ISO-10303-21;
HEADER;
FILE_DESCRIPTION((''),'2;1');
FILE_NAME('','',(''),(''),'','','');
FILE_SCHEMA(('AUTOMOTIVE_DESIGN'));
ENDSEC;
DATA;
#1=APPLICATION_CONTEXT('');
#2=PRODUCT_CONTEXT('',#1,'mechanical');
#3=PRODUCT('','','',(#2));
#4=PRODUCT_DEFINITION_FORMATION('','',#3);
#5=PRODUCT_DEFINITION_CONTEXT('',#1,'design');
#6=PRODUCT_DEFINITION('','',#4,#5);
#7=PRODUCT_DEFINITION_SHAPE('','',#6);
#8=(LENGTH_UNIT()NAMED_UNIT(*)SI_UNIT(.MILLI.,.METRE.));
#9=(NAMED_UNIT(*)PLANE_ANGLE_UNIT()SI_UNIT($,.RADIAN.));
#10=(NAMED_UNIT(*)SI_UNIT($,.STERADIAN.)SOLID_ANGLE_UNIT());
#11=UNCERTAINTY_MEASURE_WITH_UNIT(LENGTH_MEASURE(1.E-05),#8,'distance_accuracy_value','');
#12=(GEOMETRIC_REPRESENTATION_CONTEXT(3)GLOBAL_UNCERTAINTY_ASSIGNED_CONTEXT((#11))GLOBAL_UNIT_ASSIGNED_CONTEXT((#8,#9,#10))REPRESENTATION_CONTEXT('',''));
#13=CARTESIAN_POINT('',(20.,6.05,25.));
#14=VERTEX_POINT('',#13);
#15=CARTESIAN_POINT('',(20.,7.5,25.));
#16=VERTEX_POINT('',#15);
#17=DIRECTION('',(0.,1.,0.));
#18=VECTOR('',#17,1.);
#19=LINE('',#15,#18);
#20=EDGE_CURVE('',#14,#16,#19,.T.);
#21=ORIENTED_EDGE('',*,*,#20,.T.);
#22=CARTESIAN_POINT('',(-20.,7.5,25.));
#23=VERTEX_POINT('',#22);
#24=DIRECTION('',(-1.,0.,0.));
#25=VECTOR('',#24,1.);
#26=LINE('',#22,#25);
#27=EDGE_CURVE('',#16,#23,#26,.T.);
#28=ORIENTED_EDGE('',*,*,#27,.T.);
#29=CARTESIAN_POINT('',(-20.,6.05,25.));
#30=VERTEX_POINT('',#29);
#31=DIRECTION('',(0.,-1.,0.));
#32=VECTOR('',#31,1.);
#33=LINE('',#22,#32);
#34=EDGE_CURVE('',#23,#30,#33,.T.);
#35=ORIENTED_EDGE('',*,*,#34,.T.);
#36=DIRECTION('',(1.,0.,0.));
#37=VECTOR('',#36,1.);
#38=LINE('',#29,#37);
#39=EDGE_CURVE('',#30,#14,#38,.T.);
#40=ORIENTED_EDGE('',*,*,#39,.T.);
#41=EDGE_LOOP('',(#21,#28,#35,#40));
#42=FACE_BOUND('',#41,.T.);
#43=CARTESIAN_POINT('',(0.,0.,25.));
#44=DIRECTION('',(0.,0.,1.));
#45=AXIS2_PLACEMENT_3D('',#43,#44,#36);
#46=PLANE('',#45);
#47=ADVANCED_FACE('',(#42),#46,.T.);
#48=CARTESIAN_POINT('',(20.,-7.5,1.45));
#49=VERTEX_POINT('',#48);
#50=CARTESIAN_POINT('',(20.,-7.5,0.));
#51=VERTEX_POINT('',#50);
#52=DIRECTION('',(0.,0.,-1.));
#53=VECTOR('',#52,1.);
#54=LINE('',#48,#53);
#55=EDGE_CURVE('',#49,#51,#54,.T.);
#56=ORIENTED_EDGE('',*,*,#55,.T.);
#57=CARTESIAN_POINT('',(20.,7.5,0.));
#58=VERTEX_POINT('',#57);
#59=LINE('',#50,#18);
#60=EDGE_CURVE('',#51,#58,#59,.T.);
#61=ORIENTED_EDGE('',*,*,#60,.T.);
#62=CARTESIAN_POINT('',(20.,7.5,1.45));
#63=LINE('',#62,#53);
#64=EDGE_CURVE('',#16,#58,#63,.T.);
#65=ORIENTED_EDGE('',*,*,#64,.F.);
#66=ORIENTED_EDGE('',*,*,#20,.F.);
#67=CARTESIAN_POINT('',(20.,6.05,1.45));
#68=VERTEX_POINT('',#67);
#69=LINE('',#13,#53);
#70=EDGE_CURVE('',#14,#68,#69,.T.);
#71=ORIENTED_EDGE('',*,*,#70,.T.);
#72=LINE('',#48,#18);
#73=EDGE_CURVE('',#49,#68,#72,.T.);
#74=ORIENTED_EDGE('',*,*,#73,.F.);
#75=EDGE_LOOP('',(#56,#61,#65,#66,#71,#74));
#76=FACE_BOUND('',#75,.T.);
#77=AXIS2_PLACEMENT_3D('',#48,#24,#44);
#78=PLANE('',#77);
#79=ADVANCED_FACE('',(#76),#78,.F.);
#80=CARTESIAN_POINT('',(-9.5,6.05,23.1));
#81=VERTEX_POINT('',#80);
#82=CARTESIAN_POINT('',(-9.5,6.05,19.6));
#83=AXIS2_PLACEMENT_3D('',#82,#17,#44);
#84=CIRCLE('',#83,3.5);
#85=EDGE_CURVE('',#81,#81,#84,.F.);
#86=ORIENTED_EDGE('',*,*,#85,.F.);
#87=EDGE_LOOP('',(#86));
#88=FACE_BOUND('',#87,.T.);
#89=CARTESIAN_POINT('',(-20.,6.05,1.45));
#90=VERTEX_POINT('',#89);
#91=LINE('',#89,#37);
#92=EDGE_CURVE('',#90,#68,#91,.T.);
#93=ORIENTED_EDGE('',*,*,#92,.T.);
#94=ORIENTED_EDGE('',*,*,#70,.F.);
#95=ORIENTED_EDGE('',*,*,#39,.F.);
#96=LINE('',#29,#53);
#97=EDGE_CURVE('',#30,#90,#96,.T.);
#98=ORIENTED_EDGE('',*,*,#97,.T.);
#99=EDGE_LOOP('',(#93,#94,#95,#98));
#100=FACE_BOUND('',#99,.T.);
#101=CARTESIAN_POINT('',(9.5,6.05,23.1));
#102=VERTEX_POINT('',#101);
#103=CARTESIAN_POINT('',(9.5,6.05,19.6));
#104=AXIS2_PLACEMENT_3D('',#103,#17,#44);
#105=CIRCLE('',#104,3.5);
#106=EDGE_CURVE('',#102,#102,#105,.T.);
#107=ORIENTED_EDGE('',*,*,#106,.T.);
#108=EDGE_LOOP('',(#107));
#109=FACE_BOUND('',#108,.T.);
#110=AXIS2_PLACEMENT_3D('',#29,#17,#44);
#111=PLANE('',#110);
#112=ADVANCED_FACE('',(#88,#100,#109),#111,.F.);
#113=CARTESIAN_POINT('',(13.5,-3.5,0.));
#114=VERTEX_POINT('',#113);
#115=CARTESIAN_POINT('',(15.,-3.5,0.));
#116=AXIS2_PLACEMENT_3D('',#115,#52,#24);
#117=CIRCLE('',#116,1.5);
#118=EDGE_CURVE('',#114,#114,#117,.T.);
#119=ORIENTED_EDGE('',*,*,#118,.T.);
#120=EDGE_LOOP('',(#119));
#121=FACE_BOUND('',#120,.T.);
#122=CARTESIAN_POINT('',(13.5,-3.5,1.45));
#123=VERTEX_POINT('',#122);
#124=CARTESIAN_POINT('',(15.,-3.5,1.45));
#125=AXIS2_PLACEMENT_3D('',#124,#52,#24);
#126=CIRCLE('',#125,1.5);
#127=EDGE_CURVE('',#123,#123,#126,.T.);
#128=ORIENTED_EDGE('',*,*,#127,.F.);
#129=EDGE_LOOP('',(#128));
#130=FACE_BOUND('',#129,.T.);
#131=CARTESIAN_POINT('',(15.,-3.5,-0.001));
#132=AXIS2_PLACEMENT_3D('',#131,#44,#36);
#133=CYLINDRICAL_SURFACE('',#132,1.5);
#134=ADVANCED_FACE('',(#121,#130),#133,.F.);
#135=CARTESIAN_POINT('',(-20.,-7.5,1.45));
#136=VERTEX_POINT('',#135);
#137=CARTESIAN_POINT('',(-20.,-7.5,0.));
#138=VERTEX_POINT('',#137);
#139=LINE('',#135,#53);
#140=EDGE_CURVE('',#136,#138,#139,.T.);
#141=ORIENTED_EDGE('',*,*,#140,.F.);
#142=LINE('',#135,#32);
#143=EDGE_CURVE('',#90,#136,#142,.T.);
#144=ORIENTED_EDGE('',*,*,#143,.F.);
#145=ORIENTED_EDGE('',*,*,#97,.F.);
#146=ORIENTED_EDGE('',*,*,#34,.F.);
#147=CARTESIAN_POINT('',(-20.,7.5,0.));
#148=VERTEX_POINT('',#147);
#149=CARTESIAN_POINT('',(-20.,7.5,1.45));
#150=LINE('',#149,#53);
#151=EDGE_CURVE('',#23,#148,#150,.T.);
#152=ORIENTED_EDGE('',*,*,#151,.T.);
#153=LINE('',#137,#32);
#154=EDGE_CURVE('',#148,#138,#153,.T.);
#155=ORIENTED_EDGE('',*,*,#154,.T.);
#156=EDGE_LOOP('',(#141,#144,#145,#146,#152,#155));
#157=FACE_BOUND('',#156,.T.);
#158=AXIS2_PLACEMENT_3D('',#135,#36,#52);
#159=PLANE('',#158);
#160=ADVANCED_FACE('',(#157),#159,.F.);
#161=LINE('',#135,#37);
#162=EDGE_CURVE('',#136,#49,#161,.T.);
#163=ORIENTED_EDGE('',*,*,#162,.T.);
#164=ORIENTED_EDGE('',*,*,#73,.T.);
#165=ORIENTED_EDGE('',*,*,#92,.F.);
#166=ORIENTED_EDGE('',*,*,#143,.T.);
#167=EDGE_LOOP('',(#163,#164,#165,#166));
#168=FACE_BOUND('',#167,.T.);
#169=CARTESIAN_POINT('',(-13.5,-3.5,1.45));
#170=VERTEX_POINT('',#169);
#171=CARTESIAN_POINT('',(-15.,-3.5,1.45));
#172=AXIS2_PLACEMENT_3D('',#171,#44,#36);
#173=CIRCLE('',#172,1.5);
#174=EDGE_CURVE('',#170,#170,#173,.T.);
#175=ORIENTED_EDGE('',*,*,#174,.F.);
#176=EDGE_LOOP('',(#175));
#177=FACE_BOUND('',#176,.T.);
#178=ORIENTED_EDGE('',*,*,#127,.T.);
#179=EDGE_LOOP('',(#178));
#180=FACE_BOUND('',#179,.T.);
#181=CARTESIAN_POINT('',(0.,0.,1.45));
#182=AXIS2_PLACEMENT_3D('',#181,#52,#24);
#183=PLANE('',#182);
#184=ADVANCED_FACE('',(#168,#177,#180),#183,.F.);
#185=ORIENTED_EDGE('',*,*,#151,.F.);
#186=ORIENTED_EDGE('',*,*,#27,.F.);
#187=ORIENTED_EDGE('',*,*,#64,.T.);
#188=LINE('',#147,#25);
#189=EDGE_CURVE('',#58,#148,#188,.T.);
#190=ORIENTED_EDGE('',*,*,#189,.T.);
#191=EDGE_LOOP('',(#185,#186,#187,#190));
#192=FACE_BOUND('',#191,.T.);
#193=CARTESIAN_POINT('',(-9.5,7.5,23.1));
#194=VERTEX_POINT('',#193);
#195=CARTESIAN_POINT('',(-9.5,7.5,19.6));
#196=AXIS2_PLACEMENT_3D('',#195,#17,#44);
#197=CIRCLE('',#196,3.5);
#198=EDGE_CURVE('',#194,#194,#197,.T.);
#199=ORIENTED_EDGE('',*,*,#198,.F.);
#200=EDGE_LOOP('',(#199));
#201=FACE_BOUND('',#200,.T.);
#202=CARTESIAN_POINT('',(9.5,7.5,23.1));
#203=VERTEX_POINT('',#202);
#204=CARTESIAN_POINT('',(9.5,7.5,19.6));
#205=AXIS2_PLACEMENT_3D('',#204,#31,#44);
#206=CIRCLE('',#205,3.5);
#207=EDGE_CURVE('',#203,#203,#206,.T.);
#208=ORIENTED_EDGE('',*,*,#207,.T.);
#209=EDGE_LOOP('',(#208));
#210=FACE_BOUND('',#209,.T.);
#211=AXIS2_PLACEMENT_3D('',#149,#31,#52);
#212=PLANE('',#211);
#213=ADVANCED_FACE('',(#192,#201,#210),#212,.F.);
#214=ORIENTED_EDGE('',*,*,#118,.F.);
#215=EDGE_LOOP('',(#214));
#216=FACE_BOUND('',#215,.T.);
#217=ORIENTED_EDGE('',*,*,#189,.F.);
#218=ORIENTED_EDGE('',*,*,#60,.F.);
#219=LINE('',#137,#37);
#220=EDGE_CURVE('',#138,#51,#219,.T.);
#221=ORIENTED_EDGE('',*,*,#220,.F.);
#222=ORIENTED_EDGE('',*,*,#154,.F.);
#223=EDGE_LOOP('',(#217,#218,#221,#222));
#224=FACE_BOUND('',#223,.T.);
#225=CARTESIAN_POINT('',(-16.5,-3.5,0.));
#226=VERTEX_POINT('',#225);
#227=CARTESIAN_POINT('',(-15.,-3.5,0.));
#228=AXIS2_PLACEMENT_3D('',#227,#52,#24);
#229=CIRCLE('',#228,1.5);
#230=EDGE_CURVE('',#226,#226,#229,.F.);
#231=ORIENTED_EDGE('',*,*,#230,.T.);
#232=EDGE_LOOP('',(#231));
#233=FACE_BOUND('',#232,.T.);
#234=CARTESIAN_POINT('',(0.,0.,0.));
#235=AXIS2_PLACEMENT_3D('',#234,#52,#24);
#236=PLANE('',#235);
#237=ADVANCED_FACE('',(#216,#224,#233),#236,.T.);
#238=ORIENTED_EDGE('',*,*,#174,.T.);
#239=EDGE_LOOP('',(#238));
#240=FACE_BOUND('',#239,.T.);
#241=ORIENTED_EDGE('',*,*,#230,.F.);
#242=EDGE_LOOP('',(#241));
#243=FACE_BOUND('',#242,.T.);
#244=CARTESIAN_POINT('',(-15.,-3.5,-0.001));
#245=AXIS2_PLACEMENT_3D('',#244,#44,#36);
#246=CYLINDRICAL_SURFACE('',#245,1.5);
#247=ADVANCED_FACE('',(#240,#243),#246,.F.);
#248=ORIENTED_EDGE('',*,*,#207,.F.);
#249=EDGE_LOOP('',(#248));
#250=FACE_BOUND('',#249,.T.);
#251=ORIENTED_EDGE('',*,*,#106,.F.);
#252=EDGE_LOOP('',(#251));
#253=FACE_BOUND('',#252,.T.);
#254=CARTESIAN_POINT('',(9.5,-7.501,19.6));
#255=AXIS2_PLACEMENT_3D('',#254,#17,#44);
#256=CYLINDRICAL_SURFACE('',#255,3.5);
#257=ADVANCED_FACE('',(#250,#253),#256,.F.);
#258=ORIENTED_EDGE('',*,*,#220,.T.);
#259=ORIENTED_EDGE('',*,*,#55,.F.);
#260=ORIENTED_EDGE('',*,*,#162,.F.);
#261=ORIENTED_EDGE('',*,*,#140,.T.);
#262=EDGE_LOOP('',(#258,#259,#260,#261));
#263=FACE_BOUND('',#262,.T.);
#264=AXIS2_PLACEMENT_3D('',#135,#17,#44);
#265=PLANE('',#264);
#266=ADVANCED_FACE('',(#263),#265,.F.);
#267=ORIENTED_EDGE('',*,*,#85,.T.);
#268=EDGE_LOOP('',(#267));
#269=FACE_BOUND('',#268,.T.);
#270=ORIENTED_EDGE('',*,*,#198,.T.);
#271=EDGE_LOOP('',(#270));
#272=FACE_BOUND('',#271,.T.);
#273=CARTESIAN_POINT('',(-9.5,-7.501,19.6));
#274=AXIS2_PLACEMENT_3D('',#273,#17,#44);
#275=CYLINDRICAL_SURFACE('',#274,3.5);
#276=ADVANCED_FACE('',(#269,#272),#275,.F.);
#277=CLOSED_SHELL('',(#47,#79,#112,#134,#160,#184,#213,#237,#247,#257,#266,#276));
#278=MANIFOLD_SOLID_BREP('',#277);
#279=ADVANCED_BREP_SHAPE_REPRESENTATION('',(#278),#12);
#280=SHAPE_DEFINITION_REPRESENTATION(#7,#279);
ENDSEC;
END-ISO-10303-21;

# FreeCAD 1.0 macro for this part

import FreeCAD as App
import Part
import Sketcher

doc = App.newDocument("Part")
body = doc.addObject("PartDesign::Body", "Body")

sketch1 = doc.addObject("Sketcher::SketchObject", "Sketch")
body.addObject(sketch1)
sketch1.AttachmentSupport = (doc.XY_Plane, [""])
sketch1.MapMode = "FlatFace"
sketch1.addGeometry([
    Part.LineSegment(App.Vector(-20, 8, 0), App.Vector(-20, -8, 0)),
    Part.LineSegment(App.Vector(-20, -8, 0), App.Vector(20, -8, 0)),
    Part.LineSegment(App.Vector(20, -8, 0), App.Vector(20, 8, 0)),
    Part.LineSegment(App.Vector(20, 8, 0), App.Vector(-20, 8, 0)),
], False)
sketch1.addConstraint([
    Sketcher.Constraint("Coincident", 0, 2, 1, 1),
    Sketcher.Constraint("Coincident", 1, 2, 2, 1),
    Sketcher.Constraint("Coincident", 2, 2, 3, 1),
    Sketcher.Constraint("Coincident", 3, 2, 0, 1),
    Sketcher.Constraint("Vertical", 0),
    Sketcher.Constraint("Horizontal", 1),
    Sketcher.Constraint("Vertical", 2),
    Sketcher.Constraint("Horizontal", 3),
    Sketcher.Constraint("Symmetric", 0, 2, 2, 2, -1, 1),
    Sketcher.Constraint("DistanceX", 1, 1, 1, 2, 40.0),
    Sketcher.Constraint("DistanceY", 0, 2, 0, 1, 15.0),
])
pad1 = doc.addObject("PartDesign::Pad", "Pad")
body.addObject(pad1)
pad1.Profile = sketch1
pad1.Length = 1.45

sketch2 = doc.addObject("Sketcher::SketchObject", "Sketch001")
body.addObject(sketch2)
sketch2.AttachmentSupport = (doc.XY_Plane, [""])
sketch2.MapMode = "FlatFace"
sketch2.AttachmentOffset = App.Placement(App.Vector(0, 0, 1.45), App.Rotation())
sketch2.addGeometry([
    Part.LineSegment(App.Vector(-20, 7.5, 0), App.Vector(-20, 6, 0)),
    Part.LineSegment(App.Vector(-20, 6, 0), App.Vector(20, 6, 0)),
    Part.LineSegment(App.Vector(20, 6, 0), App.Vector(20, 7.5, 0)),
    Part.LineSegment(App.Vector(20, 7.5, 0), App.Vector(-20, 7.5, 0)),
], False)
sketch2.addConstraint([
    Sketcher.Constraint("Coincident", 0, 2, 1, 1),
    Sketcher.Constraint("Coincident", 1, 2, 2, 1),
    Sketcher.Constraint("Coincident", 2, 2, 3, 1),
    Sketcher.Constraint("Coincident", 3, 2, 0, 1),
    Sketcher.Constraint("Vertical", 0),
    Sketcher.Constraint("Horizontal", 1),
    Sketcher.Constraint("Vertical", 2),
    Sketcher.Constraint("Horizontal", 3),
    Sketcher.Constraint("DistanceX", 1, 1, 1, 2, 40.0),
    Sketcher.Constraint("DistanceX", 0, 2, -1, 1, 20.0),
    Sketcher.Constraint("DistanceY", 0, 2, 0, 1, 1.45),
    Sketcher.Constraint("DistanceY", -1, 1, 2, 2, 7.5),
])
pad2 = doc.addObject("PartDesign::Pad", "Pad001")
body.addObject(pad2)
pad2.Profile = sketch2
pad2.Length = 23.55

sketch3 = doc.addObject("Sketcher::SketchObject", "Sketch002")
body.addObject(sketch3)
sketch3.AttachmentSupport = (doc.XY_Plane, [""])
sketch3.MapMode = "FlatFace"
sketch3.AttachmentOffset = App.Placement(App.Vector(0, 0, 1.45), App.Rotation())
sketch3.addGeometry(Part.Circle(App.Vector(-15, -3.5, 0), App.Vector(0, 0, 1), 1.5), False)
sketch3.addConstraint([
    Sketcher.Constraint("Diameter", 0, 3.0),
    Sketcher.Constraint("DistanceX", 0, 3, -1, 1, 15.0),
    Sketcher.Constraint("DistanceY", 0, 3, -1, 1, 3.5),
])
pocket1 = doc.addObject("PartDesign::Pocket", "Pocket")
body.addObject(pocket1)
pocket1.Profile = sketch3
pocket1.Length = 1.45
doc.recompute()

mirrored = doc.addObject("PartDesign::Mirrored", "Mirrored")
body.addObject(mirrored)
mirrored.Originals = [pocket1]
mirrored.MirrorPlane = (doc.YZ_Plane, [""])
body.Tip = mirrored

sketch4 = doc.addObject("Sketcher::SketchObject", "Sketch003")
body.addObject(sketch4)
sketch4.AttachmentSupport = (doc.XZ_Plane, [""])
sketch4.MapMode = "FlatFace"
sketch4.AttachmentOffset = App.Placement(App.Vector(0, 0, -7.5), App.Rotation())
sketch4.addGeometry(Part.Circle(App.Vector(-9.5, 19.6, 0), App.Vector(0, 0, 1), 3.5), False)
sketch4.addConstraint([
    Sketcher.Constraint("Diameter", 0, 7.0),
    Sketcher.Constraint("DistanceX", 0, 3, -1, 1, 9.5),
    Sketcher.Constraint("DistanceY", -1, 1, 0, 3, 19.6),
])
pocket2 = doc.addObject("PartDesign::Pocket", "Pocket001")
body.addObject(pocket2)
pocket2.Profile = sketch4
pocket2.Length = 1.45
pocket2.Reversed = True
doc.recompute()

mirrored2 = doc.addObject("PartDesign::Mirrored", "Mirrored001")
body.addObject(mirrored2)
mirrored2.Originals = [pocket2]
mirrored2.MirrorPlane = (doc.YZ_Plane, [""])
body.Tip = mirrored2

doc.recompute()
